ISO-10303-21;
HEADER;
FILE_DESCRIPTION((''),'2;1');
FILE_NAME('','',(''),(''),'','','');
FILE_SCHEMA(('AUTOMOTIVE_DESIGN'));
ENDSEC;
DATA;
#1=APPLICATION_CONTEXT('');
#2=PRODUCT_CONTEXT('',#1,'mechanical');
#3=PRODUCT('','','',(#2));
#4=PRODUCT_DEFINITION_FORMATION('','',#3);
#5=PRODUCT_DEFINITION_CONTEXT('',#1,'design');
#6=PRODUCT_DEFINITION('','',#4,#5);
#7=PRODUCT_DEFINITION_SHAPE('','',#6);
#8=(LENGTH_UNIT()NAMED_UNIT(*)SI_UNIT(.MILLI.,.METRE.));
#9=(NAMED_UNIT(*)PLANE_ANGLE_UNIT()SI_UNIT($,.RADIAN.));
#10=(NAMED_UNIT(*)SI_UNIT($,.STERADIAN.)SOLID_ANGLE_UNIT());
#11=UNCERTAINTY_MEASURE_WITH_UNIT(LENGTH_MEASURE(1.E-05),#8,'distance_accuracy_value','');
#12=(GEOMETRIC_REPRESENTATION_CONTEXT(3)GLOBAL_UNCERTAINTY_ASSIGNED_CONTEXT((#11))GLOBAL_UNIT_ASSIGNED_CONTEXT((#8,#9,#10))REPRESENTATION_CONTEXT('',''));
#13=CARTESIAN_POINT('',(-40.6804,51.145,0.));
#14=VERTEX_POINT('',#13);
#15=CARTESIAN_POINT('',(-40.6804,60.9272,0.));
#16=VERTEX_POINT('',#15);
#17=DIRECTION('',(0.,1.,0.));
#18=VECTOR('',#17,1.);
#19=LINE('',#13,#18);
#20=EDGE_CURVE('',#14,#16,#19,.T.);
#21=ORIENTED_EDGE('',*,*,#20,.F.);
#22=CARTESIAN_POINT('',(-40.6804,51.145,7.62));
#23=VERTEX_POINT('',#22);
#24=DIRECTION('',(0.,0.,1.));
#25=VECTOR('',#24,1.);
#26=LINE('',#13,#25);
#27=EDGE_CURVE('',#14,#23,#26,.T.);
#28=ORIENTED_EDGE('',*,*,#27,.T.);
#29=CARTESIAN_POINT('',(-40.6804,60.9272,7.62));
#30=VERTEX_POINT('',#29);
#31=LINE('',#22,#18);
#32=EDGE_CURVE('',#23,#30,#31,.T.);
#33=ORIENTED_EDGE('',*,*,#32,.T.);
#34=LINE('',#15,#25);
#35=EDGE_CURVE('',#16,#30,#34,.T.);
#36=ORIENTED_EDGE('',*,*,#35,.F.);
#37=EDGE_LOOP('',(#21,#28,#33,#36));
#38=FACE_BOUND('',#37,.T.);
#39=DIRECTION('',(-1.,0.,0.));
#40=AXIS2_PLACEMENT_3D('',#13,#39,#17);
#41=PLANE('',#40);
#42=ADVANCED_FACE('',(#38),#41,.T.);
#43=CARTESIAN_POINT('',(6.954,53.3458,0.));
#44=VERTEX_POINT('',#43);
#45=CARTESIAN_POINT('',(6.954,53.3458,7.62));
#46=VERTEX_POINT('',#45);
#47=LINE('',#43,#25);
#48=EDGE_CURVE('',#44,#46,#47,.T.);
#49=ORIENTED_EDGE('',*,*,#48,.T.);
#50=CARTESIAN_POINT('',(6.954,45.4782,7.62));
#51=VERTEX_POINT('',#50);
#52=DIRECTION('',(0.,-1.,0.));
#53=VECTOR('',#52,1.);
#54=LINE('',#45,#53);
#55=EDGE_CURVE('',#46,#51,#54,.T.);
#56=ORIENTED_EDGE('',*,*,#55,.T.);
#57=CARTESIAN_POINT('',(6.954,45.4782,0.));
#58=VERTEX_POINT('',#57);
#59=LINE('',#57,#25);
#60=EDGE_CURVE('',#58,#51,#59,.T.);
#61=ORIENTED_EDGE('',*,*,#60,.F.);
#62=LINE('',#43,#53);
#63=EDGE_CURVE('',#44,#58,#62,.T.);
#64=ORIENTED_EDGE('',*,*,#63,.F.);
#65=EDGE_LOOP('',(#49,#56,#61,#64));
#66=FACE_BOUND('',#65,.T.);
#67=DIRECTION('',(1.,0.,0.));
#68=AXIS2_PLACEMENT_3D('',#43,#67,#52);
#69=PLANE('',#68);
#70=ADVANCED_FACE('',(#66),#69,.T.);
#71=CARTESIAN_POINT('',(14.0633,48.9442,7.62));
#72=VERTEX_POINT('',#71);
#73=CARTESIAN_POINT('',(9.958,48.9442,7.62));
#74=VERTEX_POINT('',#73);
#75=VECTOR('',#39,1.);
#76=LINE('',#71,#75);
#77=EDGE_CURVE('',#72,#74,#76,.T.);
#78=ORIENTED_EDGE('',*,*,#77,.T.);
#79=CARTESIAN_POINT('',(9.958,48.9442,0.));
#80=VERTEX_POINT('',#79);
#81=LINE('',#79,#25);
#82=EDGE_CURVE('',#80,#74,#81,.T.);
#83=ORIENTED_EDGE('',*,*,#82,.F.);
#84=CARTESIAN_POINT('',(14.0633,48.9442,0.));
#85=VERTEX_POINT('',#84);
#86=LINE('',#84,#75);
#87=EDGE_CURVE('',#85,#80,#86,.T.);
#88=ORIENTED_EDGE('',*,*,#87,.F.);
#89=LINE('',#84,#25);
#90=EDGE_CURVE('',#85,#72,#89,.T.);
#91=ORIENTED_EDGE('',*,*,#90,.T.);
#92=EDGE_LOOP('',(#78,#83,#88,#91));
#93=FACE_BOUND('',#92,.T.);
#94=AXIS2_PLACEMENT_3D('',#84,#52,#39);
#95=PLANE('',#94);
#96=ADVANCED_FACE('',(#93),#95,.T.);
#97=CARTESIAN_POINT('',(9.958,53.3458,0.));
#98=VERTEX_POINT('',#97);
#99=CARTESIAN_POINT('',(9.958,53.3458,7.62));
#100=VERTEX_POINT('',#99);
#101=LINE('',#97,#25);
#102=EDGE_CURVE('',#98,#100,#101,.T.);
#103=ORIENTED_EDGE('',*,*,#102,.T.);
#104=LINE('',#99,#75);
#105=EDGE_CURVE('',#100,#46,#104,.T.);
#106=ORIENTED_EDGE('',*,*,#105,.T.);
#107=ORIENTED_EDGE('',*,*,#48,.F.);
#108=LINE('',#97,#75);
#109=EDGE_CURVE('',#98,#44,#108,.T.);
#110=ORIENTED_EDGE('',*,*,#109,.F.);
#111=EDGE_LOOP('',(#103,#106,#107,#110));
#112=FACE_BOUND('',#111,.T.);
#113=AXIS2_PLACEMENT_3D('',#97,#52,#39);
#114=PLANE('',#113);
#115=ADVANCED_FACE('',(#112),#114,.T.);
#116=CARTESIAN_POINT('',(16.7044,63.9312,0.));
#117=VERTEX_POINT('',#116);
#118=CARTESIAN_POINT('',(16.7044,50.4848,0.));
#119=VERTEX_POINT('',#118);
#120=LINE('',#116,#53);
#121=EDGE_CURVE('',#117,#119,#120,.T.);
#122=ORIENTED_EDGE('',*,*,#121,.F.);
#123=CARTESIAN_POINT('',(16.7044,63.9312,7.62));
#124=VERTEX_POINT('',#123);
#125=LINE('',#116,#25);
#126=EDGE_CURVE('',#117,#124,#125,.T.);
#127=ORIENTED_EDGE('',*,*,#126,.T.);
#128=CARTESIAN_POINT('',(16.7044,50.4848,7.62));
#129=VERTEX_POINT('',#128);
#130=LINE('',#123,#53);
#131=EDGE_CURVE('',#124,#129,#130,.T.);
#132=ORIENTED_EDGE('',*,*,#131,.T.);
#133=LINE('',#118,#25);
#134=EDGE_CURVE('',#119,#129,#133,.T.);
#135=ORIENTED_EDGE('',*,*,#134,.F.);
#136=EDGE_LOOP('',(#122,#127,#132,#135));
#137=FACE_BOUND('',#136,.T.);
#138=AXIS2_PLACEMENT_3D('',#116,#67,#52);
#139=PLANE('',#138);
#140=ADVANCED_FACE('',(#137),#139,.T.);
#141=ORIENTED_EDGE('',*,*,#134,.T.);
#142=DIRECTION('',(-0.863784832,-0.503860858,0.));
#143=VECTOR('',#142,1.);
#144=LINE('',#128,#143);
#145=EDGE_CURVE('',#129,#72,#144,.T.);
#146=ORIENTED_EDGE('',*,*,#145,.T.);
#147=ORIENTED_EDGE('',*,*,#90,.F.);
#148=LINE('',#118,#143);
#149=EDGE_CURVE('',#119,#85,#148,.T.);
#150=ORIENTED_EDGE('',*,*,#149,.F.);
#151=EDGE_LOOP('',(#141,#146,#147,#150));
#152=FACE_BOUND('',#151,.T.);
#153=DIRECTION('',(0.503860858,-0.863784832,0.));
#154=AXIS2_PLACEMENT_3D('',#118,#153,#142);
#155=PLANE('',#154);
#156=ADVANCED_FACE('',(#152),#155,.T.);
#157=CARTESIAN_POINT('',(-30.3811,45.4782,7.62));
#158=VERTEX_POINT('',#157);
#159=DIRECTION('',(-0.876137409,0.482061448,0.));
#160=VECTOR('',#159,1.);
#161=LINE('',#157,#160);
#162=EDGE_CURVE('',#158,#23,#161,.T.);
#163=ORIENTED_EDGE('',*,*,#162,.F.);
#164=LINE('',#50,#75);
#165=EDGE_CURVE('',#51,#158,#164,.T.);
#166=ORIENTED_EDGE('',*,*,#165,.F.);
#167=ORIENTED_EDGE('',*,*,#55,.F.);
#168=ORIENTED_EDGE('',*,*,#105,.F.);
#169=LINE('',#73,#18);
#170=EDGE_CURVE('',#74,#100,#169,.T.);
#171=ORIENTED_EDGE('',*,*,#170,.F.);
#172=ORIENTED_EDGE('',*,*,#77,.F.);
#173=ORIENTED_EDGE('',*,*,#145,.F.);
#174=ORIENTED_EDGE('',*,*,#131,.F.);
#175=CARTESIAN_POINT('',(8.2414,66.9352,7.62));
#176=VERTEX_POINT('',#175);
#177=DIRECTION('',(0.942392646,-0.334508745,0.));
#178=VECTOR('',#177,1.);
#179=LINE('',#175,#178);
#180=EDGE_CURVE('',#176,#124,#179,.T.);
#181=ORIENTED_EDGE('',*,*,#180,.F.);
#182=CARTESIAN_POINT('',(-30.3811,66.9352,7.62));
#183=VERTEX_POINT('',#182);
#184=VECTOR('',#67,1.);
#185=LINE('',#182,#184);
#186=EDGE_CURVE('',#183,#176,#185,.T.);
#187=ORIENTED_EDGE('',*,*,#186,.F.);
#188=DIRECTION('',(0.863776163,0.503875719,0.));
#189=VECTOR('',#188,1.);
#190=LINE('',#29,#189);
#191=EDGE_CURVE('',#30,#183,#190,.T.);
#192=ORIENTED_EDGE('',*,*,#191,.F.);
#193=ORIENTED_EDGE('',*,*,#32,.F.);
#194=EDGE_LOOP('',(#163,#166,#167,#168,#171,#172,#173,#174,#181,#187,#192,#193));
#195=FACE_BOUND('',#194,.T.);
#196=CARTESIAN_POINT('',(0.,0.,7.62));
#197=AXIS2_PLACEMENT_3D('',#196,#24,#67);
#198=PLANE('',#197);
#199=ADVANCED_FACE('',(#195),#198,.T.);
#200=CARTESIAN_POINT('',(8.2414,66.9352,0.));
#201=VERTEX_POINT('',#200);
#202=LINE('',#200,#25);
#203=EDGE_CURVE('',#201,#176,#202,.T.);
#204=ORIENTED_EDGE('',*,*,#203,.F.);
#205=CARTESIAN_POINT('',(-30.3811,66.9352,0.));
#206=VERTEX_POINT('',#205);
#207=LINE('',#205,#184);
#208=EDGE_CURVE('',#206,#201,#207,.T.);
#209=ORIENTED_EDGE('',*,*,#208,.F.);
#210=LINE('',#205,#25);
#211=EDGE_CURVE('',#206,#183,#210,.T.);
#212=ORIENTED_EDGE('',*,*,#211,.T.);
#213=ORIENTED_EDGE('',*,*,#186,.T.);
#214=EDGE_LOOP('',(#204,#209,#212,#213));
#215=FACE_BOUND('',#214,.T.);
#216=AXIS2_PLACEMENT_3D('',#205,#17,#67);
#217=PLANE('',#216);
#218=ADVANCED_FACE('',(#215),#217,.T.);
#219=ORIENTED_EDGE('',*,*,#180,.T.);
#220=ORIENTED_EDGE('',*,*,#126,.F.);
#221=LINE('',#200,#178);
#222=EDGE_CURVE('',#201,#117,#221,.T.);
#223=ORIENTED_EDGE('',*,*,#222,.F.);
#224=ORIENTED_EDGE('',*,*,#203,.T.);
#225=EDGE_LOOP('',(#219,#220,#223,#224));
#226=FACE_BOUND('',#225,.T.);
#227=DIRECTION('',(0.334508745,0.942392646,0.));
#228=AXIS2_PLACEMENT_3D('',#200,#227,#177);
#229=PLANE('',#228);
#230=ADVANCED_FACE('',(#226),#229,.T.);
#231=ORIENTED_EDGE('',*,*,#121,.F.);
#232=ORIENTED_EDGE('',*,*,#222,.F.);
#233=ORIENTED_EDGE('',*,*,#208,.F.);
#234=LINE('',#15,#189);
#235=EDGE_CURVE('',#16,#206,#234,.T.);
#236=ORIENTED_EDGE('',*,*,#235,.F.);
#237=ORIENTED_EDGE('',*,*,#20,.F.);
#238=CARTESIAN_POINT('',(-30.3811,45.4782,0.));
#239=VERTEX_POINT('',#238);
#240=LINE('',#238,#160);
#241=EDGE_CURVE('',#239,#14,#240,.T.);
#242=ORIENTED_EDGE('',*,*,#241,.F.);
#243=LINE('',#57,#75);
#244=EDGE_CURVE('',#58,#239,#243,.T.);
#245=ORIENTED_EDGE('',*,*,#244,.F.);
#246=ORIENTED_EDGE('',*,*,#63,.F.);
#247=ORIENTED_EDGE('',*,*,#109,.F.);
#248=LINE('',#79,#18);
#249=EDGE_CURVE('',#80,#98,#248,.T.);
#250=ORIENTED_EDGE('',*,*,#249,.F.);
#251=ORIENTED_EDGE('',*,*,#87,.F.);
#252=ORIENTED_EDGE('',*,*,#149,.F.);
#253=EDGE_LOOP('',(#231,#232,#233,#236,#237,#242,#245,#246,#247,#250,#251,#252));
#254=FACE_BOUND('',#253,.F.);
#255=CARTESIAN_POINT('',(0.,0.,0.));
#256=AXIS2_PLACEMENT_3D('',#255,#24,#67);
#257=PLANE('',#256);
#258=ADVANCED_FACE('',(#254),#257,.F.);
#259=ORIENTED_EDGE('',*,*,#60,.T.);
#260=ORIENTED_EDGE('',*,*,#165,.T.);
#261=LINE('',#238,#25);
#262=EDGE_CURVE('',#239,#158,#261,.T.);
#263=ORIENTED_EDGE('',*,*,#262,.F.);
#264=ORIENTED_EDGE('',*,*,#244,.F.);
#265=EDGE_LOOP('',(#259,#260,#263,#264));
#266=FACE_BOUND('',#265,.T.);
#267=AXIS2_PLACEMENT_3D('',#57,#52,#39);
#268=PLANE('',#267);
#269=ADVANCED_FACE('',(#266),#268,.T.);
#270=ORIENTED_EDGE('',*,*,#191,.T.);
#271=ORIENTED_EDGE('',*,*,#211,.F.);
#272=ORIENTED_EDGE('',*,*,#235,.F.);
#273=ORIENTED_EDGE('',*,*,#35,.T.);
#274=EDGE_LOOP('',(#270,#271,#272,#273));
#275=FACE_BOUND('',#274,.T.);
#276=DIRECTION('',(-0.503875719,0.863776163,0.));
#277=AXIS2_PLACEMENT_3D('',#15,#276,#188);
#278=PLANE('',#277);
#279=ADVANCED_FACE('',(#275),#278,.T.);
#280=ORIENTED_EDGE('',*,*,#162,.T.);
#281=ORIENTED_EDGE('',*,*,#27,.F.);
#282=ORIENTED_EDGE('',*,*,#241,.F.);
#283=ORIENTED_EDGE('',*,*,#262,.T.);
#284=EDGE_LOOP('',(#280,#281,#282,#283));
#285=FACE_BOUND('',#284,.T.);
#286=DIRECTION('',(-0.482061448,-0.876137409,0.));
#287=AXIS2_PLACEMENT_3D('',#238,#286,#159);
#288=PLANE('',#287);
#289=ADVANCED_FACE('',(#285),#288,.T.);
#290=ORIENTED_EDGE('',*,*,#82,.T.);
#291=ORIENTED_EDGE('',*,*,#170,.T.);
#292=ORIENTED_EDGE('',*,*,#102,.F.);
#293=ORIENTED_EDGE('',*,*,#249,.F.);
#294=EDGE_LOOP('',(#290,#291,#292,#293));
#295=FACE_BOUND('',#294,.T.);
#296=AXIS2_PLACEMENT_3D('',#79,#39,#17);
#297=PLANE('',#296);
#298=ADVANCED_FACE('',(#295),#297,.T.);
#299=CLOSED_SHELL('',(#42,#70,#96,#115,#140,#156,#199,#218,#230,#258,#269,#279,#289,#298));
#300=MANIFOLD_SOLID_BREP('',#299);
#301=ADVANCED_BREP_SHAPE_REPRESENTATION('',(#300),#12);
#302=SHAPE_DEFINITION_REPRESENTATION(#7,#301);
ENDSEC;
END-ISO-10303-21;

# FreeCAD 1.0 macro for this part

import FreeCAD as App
import Part
import Sketcher

V = App.Vector
Q = App.Units.Quantity


def add_polygon(sketch, points):
    """Adds a closed chain of lines whose ends are joined by coincident constraints."""
    first, n = sketch.GeometryCount, len(points)
    for a, b in zip(points, points[1:] + points[:1]):
        sketch.addGeometry(Part.LineSegment(App.Vector(*a, 0), App.Vector(*b, 0)), False)
    for i in range(n):
        sketch.addConstraint(Sketcher.Constraint("Coincident", first + i, 2, first + (i + 1) % n, 1))

doc = App.newDocument("Part")
params = doc.addObject("Spreadsheet::Sheet", "Params")
for row, (alias, value) in enumerate([
    ("pad1_length", "0.3 in"),
], start=1):
    params.set(f"A{row}", alias)
    params.set(f"B{row}", "=" + value)
    params.setAlias(f"B{row}", alias)

body = doc.addObject("PartDesign::Body", "Body")

sketch1 = doc.addObject("Sketcher::SketchObject", "Sketch")
body.addObject(sketch1)
sketch1.AttachmentSupport = (doc.XY_Plane, [""])
sketch1.MapMode = "FlatFace"
add_polygon(sketch1, [(-30.3811, 66.9352), (-40.6804, 60.9272), (-40.6804, 51.145), (-30.3811, 45.4782), (6.954, 45.4782), (6.954, 53.3458), (9.958, 53.3458), (9.958, 48.9442), (14.0633, 48.9442), (16.7044, 50.4848), (16.7044, 63.9312), (8.2414, 66.9352)])
sketch1.addConstraint(Sketcher.Constraint("Vertical", 1))
sketch1.addConstraint(Sketcher.Constraint("Horizontal", 3))
sketch1.addConstraint(Sketcher.Constraint("Vertical", 4))
sketch1.addConstraint(Sketcher.Constraint("Horizontal", 5))
sketch1.addConstraint(Sketcher.Constraint("Vertical", 6))
sketch1.addConstraint(Sketcher.Constraint("Horizontal", 7))
sketch1.addConstraint(Sketcher.Constraint("Vertical", 9))
sketch1.addConstraint(Sketcher.Constraint("Horizontal", 11))
sketch1.addConstraint(Sketcher.Constraint("DistanceY", 6, 2, 6, 1, Q("0.1733 in")))
sketch1.addConstraint(Sketcher.Constraint("Distance", 2, Q("0.4628 in")))
sketch1.addConstraint(Sketcher.Constraint("DistanceX", 3, 1, 3, 2, 37.335))
sketch1.addConstraint(Sketcher.Constraint("DistanceX", 5, 1, 5, 2, 3.004))
sketch1.addConstraint(Sketcher.Constraint("DistanceX", 7, 1, 7, 2, 4.1053))
sketch1.addConstraint(Sketcher.Constraint("DistanceX", 11, 2, 11, 1, 38.6225))
sketch1.addConstraint(Sketcher.Constraint("DistanceY", 1, 2, 1, 1, 9.7822))
sketch1.addConstraint(Sketcher.Constraint("DistanceY", 4, 1, 4, 2, 7.8676))
sketch1.addConstraint(Sketcher.Constraint("DistanceY", 9, 1, 9, 2, 13.4464))
sketch1.addConstraint(Sketcher.Constraint("DistanceX", 0, 2, -1, 1, Q("1.6016 in")))
sketch1.addConstraint(Sketcher.Constraint("DistanceY", -1, 1, 0, 2, Q("2.3987 in")))
sketch1.addConstraint(Sketcher.Constraint("DistanceX", 2, 2, -1, 1, Q("1.1961 in")))
sketch1.addConstraint(Sketcher.Constraint("DistanceY", -1, 1, 8, 2, Q("1.9876 in")))
sketch1.addConstraint(Sketcher.Constraint("DistanceX", 11, 2, -1, 1, Q("1.1961 in")))
sketch1.addConstraint(Sketcher.Constraint("DistanceX", 6, 2, 8, 2, Q("0.2656 in")))
sketch1.addConstraint(Sketcher.Constraint("DistanceY", 6, 2, 10, 2, Q("0.7083 in")))
pad1 = doc.addObject("PartDesign::Pad", "Pad")
body.addObject(pad1)
pad1.Profile = sketch1
pad1.setExpression("Length", "Params.pad1_length")

doc.recompute()
